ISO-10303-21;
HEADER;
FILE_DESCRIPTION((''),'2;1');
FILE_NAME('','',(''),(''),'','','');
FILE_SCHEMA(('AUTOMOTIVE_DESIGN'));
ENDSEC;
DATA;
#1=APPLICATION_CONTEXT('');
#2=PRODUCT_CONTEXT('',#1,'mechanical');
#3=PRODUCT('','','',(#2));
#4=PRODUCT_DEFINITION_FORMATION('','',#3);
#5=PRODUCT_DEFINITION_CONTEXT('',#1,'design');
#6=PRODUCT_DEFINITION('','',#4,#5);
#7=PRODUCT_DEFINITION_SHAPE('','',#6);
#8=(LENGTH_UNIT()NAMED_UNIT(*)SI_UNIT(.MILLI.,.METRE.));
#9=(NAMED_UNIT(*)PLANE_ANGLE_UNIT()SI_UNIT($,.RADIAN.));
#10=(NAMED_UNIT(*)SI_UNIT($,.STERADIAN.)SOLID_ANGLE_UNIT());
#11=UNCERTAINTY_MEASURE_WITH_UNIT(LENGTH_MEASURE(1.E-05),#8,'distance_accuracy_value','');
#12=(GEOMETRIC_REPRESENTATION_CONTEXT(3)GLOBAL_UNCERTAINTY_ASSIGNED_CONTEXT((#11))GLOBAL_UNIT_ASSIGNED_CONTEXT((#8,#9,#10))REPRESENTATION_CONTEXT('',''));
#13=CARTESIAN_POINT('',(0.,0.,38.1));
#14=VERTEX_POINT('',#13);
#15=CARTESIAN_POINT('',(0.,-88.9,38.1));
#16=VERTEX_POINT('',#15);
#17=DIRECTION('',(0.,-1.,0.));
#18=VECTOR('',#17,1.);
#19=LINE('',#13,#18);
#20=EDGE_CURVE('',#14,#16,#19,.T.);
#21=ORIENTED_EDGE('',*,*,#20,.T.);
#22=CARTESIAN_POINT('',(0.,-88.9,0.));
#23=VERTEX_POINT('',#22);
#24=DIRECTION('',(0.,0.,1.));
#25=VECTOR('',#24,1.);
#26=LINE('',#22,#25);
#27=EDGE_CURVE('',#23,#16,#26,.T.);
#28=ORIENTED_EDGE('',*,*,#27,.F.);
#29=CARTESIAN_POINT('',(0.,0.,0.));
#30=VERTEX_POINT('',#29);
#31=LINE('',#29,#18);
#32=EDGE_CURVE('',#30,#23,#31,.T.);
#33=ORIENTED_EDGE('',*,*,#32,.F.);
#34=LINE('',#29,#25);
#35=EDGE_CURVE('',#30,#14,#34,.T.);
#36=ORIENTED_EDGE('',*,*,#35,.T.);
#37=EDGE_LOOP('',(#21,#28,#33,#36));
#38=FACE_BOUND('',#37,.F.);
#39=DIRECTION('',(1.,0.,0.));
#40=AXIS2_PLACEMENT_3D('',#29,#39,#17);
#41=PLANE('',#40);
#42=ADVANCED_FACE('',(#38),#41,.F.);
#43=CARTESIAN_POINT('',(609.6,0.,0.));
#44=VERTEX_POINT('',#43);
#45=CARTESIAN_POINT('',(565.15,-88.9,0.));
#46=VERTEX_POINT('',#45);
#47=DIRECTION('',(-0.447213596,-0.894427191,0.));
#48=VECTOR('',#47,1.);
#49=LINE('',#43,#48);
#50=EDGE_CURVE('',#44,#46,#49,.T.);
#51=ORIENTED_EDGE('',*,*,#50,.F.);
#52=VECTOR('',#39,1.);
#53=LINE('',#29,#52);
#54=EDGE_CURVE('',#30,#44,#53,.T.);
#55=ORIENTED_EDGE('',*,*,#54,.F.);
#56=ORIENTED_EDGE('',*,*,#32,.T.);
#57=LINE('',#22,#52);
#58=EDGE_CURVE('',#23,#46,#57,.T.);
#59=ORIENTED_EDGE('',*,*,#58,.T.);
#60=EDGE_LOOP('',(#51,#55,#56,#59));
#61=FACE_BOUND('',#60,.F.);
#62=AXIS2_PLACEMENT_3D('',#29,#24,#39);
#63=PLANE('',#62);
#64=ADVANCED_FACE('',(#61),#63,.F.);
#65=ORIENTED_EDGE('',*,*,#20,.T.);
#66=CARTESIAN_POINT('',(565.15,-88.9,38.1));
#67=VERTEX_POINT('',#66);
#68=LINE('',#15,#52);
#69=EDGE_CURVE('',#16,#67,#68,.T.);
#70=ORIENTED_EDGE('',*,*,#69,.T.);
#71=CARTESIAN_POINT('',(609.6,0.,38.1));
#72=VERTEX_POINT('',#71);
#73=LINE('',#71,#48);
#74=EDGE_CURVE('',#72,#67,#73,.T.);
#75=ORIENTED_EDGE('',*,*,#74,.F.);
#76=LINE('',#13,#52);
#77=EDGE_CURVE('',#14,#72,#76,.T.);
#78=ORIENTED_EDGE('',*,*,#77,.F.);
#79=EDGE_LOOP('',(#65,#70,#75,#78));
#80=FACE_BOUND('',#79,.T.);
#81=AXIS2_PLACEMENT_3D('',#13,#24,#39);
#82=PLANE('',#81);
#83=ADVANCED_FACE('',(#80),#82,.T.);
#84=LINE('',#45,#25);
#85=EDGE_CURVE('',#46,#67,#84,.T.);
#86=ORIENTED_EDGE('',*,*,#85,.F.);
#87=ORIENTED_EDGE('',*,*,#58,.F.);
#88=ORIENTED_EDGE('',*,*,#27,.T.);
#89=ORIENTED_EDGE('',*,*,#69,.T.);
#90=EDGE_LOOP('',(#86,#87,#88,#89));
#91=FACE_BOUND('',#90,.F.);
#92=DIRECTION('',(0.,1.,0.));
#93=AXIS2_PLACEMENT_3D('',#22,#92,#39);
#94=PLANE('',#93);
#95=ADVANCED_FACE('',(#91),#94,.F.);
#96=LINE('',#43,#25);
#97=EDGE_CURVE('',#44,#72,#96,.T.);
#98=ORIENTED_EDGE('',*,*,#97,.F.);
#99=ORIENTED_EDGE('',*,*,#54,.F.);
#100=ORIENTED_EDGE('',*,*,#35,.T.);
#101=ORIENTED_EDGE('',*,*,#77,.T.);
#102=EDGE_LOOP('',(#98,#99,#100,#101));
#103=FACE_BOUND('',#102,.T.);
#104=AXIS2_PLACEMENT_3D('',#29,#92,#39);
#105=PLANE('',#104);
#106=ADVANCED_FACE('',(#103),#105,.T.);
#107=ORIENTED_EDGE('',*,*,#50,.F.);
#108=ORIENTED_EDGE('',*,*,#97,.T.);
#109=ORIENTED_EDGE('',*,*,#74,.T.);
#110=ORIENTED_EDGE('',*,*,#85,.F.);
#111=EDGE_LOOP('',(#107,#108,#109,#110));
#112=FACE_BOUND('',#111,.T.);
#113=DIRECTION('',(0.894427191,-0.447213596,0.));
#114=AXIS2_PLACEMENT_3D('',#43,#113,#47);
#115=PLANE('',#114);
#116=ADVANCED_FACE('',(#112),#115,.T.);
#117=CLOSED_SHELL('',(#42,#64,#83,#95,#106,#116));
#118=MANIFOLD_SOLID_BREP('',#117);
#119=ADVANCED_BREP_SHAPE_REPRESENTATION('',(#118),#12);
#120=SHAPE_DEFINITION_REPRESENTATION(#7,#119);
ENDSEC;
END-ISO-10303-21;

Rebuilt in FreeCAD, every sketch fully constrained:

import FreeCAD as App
import Part
import Sketcher

V = App.Vector
Q = App.Units.Quantity

doc = App.newDocument("Part")
body = doc.addObject("PartDesign::Body", "Body")

# Sketch on XY plane
sketch1 = body.newObject("Sketcher::SketchObject", "Sketch")
sketch1.AttachmentSupport = (doc.getObject("XY_Plane"), [""])
sketch1.MapMode = "FlatFace"
sketch1.addGeometry(Part.LineSegment(V(609.6, 0, 0), V(0, 0, 0)), False)
sketch1.addGeometry(Part.LineSegment(V(0, 0, 0), V(0, -88.9, 0)), False)
sketch1.addGeometry(Part.LineSegment(V(0, -88.9, 0), V(565.15, -88.9, 0)), False)
sketch1.addGeometry(Part.LineSegment(V(565.15, -88.9, 0), V(609.6, 0, 0)), False)
sketch1.addConstraint(Sketcher.Constraint("Coincident", 0, 2, 1, 1))
sketch1.addConstraint(Sketcher.Constraint("Coincident", 1, 2, 2, 1))
sketch1.addConstraint(Sketcher.Constraint("Coincident", 2, 2, 3, 1))
sketch1.addConstraint(Sketcher.Constraint("Coincident", 3, 2, 0, 1))
sketch1.addConstraint(Sketcher.Constraint("Horizontal", 0))
sketch1.addConstraint(Sketcher.Constraint("Vertical", 1))
sketch1.addConstraint(Sketcher.Constraint("Horizontal", 2))
sketch1.addConstraint(Sketcher.Constraint("Coincident", 0, 2, -1, 1))
sketch1.addConstraint(Sketcher.Constraint("DistanceX", 0, 2, 0, 1, Q("24 in")))
sketch1.addConstraint(Sketcher.Constraint("DistanceY", 1, 2, 1, 1, Q("3.5 in")))
sketch1.addConstraint(Sketcher.Constraint("DistanceX", 2, 1, 2, 2, Q("22.25 in")))
pad1 = body.newObject("PartDesign::Pad", "Pad")
pad1.Profile = sketch1
pad1.Length = Q("1.5 in")

doc.recompute()
